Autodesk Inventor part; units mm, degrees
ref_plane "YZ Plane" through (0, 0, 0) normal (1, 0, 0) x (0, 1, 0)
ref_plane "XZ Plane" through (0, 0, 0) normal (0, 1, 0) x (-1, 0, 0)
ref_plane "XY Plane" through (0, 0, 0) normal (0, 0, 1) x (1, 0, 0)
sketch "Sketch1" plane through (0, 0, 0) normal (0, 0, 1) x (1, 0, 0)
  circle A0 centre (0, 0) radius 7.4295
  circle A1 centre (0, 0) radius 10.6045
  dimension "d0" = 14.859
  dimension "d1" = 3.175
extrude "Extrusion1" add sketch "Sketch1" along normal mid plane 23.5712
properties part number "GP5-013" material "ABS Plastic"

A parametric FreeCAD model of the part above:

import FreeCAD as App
import Part
import Sketcher

V = App.Vector
Q = App.Units.Quantity

doc = App.newDocument("Part")
body = doc.addObject("PartDesign::Body", "Body")

# Sketch on XY plane
sketch1 = body.newObject("Sketcher::SketchObject", "Sketch")
sketch1.AttachmentSupport = (doc.getObject("XY_Plane"), [""])
sketch1.MapMode = "FlatFace"
sketch1.addGeometry([
    Part.Circle(V(0, 0, 0), V(0, 0, 1), 10.6045),
    Part.Circle(V(0, 0, 0), V(0, 0, 1), 7.4295),
], False)
sketch1.addConstraint([
    Sketcher.Constraint("Coincident", 0, 3, -1, 1),
    Sketcher.Constraint("Coincident", 1, 3, -1, 1),
    Sketcher.Constraint("Diameter", 1, Q("0.585 in")),
    Sketcher.Constraint("Diameter", 0, Q("0.835 in")),
])
pad1 = body.newObject("PartDesign::Pad", "Pad")
pad1.Profile = sketch1
pad1.Length = Q("0.928 in")
pad1.Midplane = True

doc.recompute()
